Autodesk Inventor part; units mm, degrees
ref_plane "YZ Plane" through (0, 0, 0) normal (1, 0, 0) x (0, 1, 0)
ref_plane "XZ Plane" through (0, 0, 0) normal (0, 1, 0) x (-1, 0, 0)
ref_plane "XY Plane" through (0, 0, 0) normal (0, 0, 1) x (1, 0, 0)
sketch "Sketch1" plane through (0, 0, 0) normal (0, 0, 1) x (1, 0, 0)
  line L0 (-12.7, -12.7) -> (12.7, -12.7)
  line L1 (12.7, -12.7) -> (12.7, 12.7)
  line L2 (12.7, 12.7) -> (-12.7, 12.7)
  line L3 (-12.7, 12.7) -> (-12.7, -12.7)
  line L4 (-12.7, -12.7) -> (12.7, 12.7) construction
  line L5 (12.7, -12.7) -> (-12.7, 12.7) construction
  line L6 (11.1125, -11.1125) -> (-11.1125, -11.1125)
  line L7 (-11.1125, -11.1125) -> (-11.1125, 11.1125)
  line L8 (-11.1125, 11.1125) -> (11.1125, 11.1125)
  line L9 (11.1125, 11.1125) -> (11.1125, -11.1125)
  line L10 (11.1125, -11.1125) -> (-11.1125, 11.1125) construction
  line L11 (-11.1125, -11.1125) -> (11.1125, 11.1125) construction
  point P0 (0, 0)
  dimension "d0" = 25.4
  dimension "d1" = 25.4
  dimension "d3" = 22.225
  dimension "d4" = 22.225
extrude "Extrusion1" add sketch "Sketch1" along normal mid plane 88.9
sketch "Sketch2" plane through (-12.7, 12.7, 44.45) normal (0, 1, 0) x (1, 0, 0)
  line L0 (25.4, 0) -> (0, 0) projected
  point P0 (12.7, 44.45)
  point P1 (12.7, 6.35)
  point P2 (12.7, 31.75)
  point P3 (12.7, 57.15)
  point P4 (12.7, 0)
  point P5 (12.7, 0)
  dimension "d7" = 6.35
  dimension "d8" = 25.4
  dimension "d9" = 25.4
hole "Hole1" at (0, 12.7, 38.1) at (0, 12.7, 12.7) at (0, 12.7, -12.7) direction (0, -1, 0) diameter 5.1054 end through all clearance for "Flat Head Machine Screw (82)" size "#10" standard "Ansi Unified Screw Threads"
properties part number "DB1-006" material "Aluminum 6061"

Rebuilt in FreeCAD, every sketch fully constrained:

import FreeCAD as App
import Part
import Sketcher

V = App.Vector
Q = App.Units.Quantity

doc = App.newDocument("Part")
body = doc.addObject("PartDesign::Body", "Body")

# Sketch on XY plane
sketch1 = doc.addObject("Sketcher::SketchObject", "Sketch")
body.addObject(sketch1)
sketch1.AttachmentSupport = (doc.XY_Plane, [""])
sketch1.MapMode = "FlatFace"
sketch1.addGeometry([
    Part.LineSegment(V(-13, 13, 0), V(-13, -13, 0)),  # 0
    Part.LineSegment(V(-13, -13, 0), V(13, -13, 0)),  # 1
    Part.LineSegment(V(13, -13, 0), V(13, 13, 0)),  # 2
    Part.LineSegment(V(13, 13, 0), V(-13, 13, 0)),  # 3
    Part.LineSegment(V(11, 11, 0), V(11, -11, 0)),  # 4
    Part.LineSegment(V(11, -11, 0), V(-11, -11, 0)),  # 5
    Part.LineSegment(V(-11, -11, 0), V(-11, 11, 0)),  # 6
    Part.LineSegment(V(-11, 11, 0), V(11, 11, 0)),  # 7
], False)
sketch1.addConstraint([
    Sketcher.Constraint("Coincident", 0, 2, 1, 1),
    Sketcher.Constraint("Coincident", 1, 2, 2, 1),
    Sketcher.Constraint("Coincident", 2, 2, 3, 1),
    Sketcher.Constraint("Coincident", 3, 2, 0, 1),
    Sketcher.Constraint("Coincident", 4, 2, 5, 1),
    Sketcher.Constraint("Coincident", 5, 2, 6, 1),
    Sketcher.Constraint("Coincident", 6, 2, 7, 1),
    Sketcher.Constraint("Coincident", 7, 2, 4, 1),
    Sketcher.Constraint("Vertical", 0),
    Sketcher.Constraint("Horizontal", 1),
    Sketcher.Constraint("Vertical", 2),
    Sketcher.Constraint("Horizontal", 3),
    Sketcher.Constraint("Vertical", 4),
    Sketcher.Constraint("Horizontal", 5),
    Sketcher.Constraint("Vertical", 6),
    Sketcher.Constraint("Horizontal", 7),
    Sketcher.Constraint("Symmetric", 0, 2, 2, 2, -1, 1),
    Sketcher.Constraint("Symmetric", 4, 2, 6, 2, -1, 1),
    Sketcher.Constraint("Equal", 3, 0),
    Sketcher.Constraint("Equal", 7, 4),
    Sketcher.Constraint("DistanceX", 1, 1, 1, 2, Q("1 in")),
    Sketcher.Constraint("DistanceX", 5, 2, 5, 1, Q("0.875 in")),
])
pad1 = doc.addObject("PartDesign::Pad", "Pad")
body.addObject(pad1)
pad1.Profile = sketch1
pad1.Length = Q("3.5 in")
pad1.Midplane = True

# Sketch on XZ plane
sketch2 = doc.addObject("Sketcher::SketchObject", "Sketch001")
body.addObject(sketch2)
sketch2.AttachmentSupport = (doc.XZ_Plane, [""])
sketch2.MapMode = "FlatFace"
sketch2.AttachmentOffset = App.Placement(V(0, 0, -0.5 * 25.4), App.Rotation())
sketch2.addGeometry([
    Part.Circle(V(0, 38.1, 0), V(0, 0, 1), 2.6),
    Part.Circle(V(0, 12.7, 0), V(0, 0, 1), 2.6),
    Part.Circle(V(0, -12.7, 0), V(0, 0, 1), 2.6),
], False)
sketch2.addConstraint([
    Sketcher.Constraint("Equal", 0, 1),
    Sketcher.Constraint("Equal", 1, 2),
    Sketcher.Constraint("Symmetric", 1, 3, 2, 3, -1, 1),
    Sketcher.Constraint("PointOnObject", 0, 3, -2),
    Sketcher.Constraint("PointOnObject", 1, 3, -2),
    Sketcher.Constraint("Diameter", 0, Q("0.201 in")),
    Sketcher.Constraint("DistanceY", 1, 3, 0, 3, Q("1 in")),
    Sketcher.Constraint("DistanceY", 2, 3, 1, 3, Q("1 in")),
])
doc.recompute()
hole = doc.addObject("PartDesign::Hole", "Hole")
body.addObject(hole)
hole.Profile = sketch2
hole.ThreadType = "None"
hole.Diameter = Q("0.201 in")
hole.DepthType = "ThroughAll"
hole.Reversed = True

doc.recompute()
